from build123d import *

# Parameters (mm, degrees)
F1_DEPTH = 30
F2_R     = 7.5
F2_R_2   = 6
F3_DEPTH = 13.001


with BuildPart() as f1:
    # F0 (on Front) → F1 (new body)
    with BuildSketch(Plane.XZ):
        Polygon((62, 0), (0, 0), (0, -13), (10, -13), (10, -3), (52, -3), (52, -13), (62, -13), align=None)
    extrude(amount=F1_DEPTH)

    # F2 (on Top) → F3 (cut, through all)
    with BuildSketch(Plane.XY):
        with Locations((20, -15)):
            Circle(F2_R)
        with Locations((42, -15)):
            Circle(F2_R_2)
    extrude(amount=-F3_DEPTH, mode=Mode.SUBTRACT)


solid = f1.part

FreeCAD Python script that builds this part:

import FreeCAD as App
import Part
import Sketcher

V = App.Vector


def add_polygon(sketch, points):
    """Adds a closed chain of lines whose ends are joined by coincident constraints."""
    first, n = sketch.GeometryCount, len(points)
    for a, b in zip(points, points[1:] + points[:1]):
        sketch.addGeometry(Part.LineSegment(App.Vector(*a, 0), App.Vector(*b, 0)), False)
    for i in range(n):
        sketch.addConstraint(Sketcher.Constraint("Coincident", first + i, 2, first + (i + 1) % n, 1))

doc = App.newDocument("Part")
body = doc.addObject("PartDesign::Body", "Body")

# Sketch on XZ plane
sketch1 = body.newObject("Sketcher::SketchObject", "Sketch")
sketch1.AttachmentSupport = (doc.getObject("XZ_Plane"), [""])
sketch1.MapMode = "FlatFace"
add_polygon(sketch1, [(62, 0), (0, 0), (0, -13), (10, -13), (10, -3), (52, -3), (52, -13), (62, -13)])  # lines 0-7
sketch1.addConstraint(Sketcher.Constraint("Horizontal", 0))
sketch1.addConstraint(Sketcher.Constraint("Vertical", 1))
sketch1.addConstraint(Sketcher.Constraint("Horizontal", 2))
sketch1.addConstraint(Sketcher.Constraint("Vertical", 3))
sketch1.addConstraint(Sketcher.Constraint("Horizontal", 4))
sketch1.addConstraint(Sketcher.Constraint("Vertical", 5))
sketch1.addConstraint(Sketcher.Constraint("Horizontal", 6))
sketch1.addConstraint(Sketcher.Constraint("Vertical", 7))
sketch1.addConstraint(Sketcher.Constraint("Coincident", 0, 2, -1, 1))
sketch1.addConstraint(Sketcher.Constraint("Horizontal", 2, 2, 5, 2))
sketch1.addConstraint(Sketcher.Constraint("Equal", 2, 6))
sketch1.addConstraint(Sketcher.Constraint("Equal", 6, 3))
sketch1.addConstraint(Sketcher.Constraint("DistanceX", 0, 2, 0, 1, 62.0))
sketch1.addConstraint(Sketcher.Constraint("DistanceX", 2, 1, 2, 2, 10.0))
sketch1.addConstraint(Sketcher.Constraint("DistanceY", 1, 2, 1, 1, 13.0))
pad1 = body.newObject("PartDesign::Pad", "Pad")
pad1.Profile = sketch1
pad1.Length = 30

# Sketch on XY plane
sketch2 = body.newObject("Sketcher::SketchObject", "Sketch001")
sketch2.AttachmentSupport = (doc.getObject("XY_Plane"), [""])
sketch2.MapMode = "FlatFace"
sketch2.addGeometry(Part.Circle(V(20, -15, 0), V(0, 0, 1), 7.5), False)
sketch2.addGeometry(Part.Circle(V(42, -15, 0), V(0, 0, 1), 6), False)
sketch2.addConstraint(Sketcher.Constraint("Horizontal", 0, 3, 1, 3))
sketch2.addConstraint(Sketcher.Constraint("Diameter", 0, 15.0))
sketch2.addConstraint(Sketcher.Constraint("Diameter", 1, 12.0))
sketch2.addConstraint(Sketcher.Constraint("DistanceX", -1, 1, 0, 3, 20.0))
sketch2.addConstraint(Sketcher.Constraint("DistanceY", 0, 3, -1, 1, 15.0))
sketch2.addConstraint(Sketcher.Constraint("DistanceX", -1, 1, 1, 3, 42.0))
pocket1 = body.newObject("PartDesign::Pocket", "Pocket")
pocket1.Profile = sketch2
pocket1.Type = "ThroughAll"

doc.recompute()
